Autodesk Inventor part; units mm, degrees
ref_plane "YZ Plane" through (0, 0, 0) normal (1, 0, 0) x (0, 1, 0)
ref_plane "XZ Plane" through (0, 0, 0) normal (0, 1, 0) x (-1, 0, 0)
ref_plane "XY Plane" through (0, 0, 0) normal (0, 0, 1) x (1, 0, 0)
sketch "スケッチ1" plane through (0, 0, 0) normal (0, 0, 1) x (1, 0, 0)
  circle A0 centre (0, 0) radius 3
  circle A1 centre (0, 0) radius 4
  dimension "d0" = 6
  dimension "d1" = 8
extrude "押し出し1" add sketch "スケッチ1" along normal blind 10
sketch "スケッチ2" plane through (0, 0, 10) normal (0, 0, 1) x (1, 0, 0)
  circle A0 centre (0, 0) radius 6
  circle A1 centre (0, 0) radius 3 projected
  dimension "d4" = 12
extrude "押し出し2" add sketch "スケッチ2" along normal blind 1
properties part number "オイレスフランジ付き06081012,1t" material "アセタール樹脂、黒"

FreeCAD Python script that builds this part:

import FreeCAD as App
import Part
import Sketcher
Q = App.Units.Quantity

doc = App.newDocument("Part")
body = doc.addObject("PartDesign::Body", "Body")

# Sketch on XY plane
sketch1 = doc.addObject("Sketcher::SketchObject", "Sketch")
body.addObject(sketch1)
sketch1.AttachmentSupport = (doc.XY_Plane, [""])
sketch1.MapMode = "FlatFace"
sketch1.addGeometry(Part.Circle(App.Vector(0, 0, 0), App.Vector(0, 0, 1), 4), False)
sketch1.addGeometry(Part.Circle(App.Vector(0, 0, 0), App.Vector(0, 0, 1), 3), False)
sketch1.addConstraint(Sketcher.Constraint("Coincident", 0, 3, -1, 1))
sketch1.addConstraint(Sketcher.Constraint("Coincident", 1, 3, -1, 1))
sketch1.addConstraint(Sketcher.Constraint("Diameter", 0, Q("8 mm")))
sketch1.addConstraint(Sketcher.Constraint("Diameter", 1, Q("6 mm")))
pad1 = doc.addObject("PartDesign::Pad", "Pad")
body.addObject(pad1)
pad1.Profile = sketch1
pad1.Length = 10

# Sketch on XY plane
sketch2 = doc.addObject("Sketcher::SketchObject", "Sketch001")
body.addObject(sketch2)
sketch2.AttachmentSupport = (doc.XY_Plane, [""])
sketch2.MapMode = "FlatFace"
sketch2.AttachmentOffset = App.Placement(App.Vector(0, 0, 10), App.Rotation())
sketch2.addGeometry(Part.Circle(App.Vector(0, 0, 0), App.Vector(0, 0, 1), 6), False)
sketch2.addGeometry(Part.Circle(App.Vector(0, 0, 0), App.Vector(0, 0, 1), 3), False)
sketch2.addConstraint(Sketcher.Constraint("Coincident", 0, 3, -1, 1))
sketch2.addConstraint(Sketcher.Constraint("Coincident", 1, 3, -1, 1))
sketch2.addConstraint(Sketcher.Constraint("Diameter", 0, Q("12 mm")))
sketch2.addConstraint(Sketcher.Constraint("Diameter", 1, Q("6 mm")))
pad2 = doc.addObject("PartDesign::Pad", "Pad001")
body.addObject(pad2)
pad2.Profile = sketch2
pad2.Length = 1

doc.recompute()
